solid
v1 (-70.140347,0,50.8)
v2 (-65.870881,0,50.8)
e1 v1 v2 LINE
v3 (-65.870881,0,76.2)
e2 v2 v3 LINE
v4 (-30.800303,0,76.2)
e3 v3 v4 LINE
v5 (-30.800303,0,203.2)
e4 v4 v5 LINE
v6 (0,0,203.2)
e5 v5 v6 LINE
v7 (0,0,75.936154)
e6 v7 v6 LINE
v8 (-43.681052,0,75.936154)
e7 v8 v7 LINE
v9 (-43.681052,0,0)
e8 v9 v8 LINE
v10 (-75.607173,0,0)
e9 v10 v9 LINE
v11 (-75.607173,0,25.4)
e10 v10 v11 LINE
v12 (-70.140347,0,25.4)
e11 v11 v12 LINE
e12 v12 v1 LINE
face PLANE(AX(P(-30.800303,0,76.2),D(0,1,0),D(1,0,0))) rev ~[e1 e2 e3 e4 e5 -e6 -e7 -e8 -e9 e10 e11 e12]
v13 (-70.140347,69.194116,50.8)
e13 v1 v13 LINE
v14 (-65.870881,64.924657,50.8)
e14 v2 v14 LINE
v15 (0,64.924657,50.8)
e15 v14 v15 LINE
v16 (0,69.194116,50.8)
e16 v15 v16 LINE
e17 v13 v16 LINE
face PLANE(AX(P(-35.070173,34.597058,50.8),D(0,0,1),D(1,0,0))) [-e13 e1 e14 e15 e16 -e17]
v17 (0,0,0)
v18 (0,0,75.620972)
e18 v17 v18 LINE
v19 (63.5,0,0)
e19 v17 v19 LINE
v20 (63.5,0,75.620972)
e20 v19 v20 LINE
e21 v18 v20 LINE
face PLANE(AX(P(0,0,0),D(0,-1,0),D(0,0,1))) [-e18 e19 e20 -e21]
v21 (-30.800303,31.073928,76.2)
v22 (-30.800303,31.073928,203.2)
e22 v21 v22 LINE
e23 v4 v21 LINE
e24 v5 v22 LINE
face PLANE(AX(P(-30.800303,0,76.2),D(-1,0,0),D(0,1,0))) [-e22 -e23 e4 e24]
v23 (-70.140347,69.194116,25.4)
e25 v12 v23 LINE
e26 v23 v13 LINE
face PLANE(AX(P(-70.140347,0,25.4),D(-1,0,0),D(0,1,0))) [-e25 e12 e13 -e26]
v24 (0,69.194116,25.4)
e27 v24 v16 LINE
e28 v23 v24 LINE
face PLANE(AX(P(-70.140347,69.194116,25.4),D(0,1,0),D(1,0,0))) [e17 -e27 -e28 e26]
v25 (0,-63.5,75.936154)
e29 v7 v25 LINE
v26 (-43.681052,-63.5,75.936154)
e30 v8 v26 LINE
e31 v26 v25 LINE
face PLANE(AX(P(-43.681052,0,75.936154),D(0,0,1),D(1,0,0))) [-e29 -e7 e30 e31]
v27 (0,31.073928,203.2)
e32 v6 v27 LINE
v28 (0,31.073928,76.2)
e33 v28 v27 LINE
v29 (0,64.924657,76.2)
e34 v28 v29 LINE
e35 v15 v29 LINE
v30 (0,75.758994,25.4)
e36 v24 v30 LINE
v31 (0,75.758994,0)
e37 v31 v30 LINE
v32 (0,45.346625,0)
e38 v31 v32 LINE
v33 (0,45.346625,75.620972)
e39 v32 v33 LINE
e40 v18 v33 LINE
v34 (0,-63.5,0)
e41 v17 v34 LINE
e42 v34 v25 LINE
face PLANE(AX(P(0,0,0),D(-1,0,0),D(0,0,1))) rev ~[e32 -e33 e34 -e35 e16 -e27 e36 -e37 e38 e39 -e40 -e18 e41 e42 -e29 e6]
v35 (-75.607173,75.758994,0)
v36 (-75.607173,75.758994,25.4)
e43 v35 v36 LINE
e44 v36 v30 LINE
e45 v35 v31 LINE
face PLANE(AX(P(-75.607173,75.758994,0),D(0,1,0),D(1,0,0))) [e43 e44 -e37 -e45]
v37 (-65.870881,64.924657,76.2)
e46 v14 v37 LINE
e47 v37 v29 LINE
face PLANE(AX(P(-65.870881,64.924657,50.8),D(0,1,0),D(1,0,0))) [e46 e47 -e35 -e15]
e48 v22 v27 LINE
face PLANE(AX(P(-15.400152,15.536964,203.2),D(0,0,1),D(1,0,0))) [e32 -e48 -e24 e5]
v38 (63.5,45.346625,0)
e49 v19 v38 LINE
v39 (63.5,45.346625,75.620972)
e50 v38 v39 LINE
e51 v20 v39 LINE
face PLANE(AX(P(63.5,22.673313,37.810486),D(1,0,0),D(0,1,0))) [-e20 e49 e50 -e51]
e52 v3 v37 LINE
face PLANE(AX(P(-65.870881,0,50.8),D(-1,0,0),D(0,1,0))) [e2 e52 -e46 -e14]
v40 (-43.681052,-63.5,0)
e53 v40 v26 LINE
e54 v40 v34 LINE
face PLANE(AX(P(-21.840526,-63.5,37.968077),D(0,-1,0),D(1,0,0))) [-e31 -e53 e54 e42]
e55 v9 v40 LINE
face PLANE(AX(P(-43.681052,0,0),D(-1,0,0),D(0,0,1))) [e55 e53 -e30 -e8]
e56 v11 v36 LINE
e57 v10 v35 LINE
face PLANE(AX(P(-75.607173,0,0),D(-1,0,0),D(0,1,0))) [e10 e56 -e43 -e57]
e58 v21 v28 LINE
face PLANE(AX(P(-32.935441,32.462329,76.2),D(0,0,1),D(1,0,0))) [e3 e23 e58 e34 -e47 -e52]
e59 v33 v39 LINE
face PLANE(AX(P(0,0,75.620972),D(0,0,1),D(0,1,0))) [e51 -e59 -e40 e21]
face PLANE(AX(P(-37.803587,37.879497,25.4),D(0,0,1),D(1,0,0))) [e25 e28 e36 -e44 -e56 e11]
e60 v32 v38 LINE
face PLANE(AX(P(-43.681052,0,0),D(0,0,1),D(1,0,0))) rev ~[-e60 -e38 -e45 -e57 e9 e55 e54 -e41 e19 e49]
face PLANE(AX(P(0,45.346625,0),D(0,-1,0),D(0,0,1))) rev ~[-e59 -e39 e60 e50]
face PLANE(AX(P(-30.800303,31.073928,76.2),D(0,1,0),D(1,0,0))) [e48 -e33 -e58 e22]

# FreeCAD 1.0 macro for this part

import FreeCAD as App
import Part
import Sketcher
Q = App.Units.Quantity

doc = App.newDocument("Part")
body = doc.addObject("PartDesign::Body", "Body")

# Sketch on XY plane
sketch1 = body.newObject("Sketcher::SketchObject", "Sketch")
sketch1.AttachmentSupport = (doc.getObject("XY_Plane"), [""])
sketch1.MapMode = "FlatFace"
sketch1.addGeometry(Part.LineSegment(App.Vector(-75.607173, 75.758994, 0), App.Vector(-75.607173, 0, 0)), False)
sketch1.addGeometry(Part.LineSegment(App.Vector(-75.607173, 0, 0), App.Vector(0, 0, 0)), False)
sketch1.addGeometry(Part.LineSegment(App.Vector(0, 0, 0), App.Vector(0, 75.758994, 0)), False)
sketch1.addGeometry(Part.LineSegment(App.Vector(0, 75.758994, 0), App.Vector(-75.607173, 75.758994, 0)), False)
sketch1.addConstraint(Sketcher.Constraint("Coincident", 0, 2, 1, 1))
sketch1.addConstraint(Sketcher.Constraint("Coincident", 1, 2, 2, 1))
sketch1.addConstraint(Sketcher.Constraint("Coincident", 2, 2, 3, 1))
sketch1.addConstraint(Sketcher.Constraint("Coincident", 3, 2, 0, 1))
sketch1.addConstraint(Sketcher.Constraint("Vertical", 0))
sketch1.addConstraint(Sketcher.Constraint("Horizontal", 1))
sketch1.addConstraint(Sketcher.Constraint("Vertical", 2))
sketch1.addConstraint(Sketcher.Constraint("Horizontal", 3))
sketch1.addConstraint(Sketcher.Constraint("Coincident", 1, 2, -1, 1))
sketch1.addConstraint(Sketcher.Constraint("DistanceX", 1, 1, 1, 2, 75.607173))
sketch1.addConstraint(Sketcher.Constraint("DistanceY", 0, 2, 0, 1, 75.758994))
pad1 = body.newObject("PartDesign::Pad", "Pad")
pad1.Profile = sketch1
pad1.Length = Q("1 in")

# Sketch on XY plane
sketch2 = body.newObject("Sketcher::SketchObject", "Sketch001")
sketch2.AttachmentSupport = (doc.getObject("XY_Plane"), [""])
sketch2.MapMode = "FlatFace"
sketch2.AttachmentOffset = App.Placement(App.Vector(0, 0, 1 * 25.4), App.Rotation())
sketch2.addGeometry(Part.LineSegment(App.Vector(-70.140347, 69.194116, 0), App.Vector(-70.140347, 0, 0)), False)
sketch2.addGeometry(Part.LineSegment(App.Vector(-70.140347, 0, 0), App.Vector(0, 0, 0)), False)
sketch2.addGeometry(Part.LineSegment(App.Vector(0, 0, 0), App.Vector(0, 69.194116, 0)), False)
sketch2.addGeometry(Part.LineSegment(App.Vector(0, 69.194116, 0), App.Vector(-70.140347, 69.194116, 0)), False)
sketch2.addConstraint(Sketcher.Constraint("Coincident", 0, 2, 1, 1))
sketch2.addConstraint(Sketcher.Constraint("Coincident", 1, 2, 2, 1))
sketch2.addConstraint(Sketcher.Constraint("Coincident", 2, 2, 3, 1))
sketch2.addConstraint(Sketcher.Constraint("Coincident", 3, 2, 0, 1))
sketch2.addConstraint(Sketcher.Constraint("Vertical", 0))
sketch2.addConstraint(Sketcher.Constraint("Horizontal", 1))
sketch2.addConstraint(Sketcher.Constraint("Vertical", 2))
sketch2.addConstraint(Sketcher.Constraint("Horizontal", 3))
sketch2.addConstraint(Sketcher.Constraint("Coincident", 1, 2, -1, 1))
sketch2.addConstraint(Sketcher.Constraint("DistanceX", 1, 1, 1, 2, 70.140347))
sketch2.addConstraint(Sketcher.Constraint("DistanceY", 0, 2, 0, 1, 69.194116))
pad2 = body.newObject("PartDesign::Pad", "Pad001")
pad2.Profile = sketch2
pad2.Length = Q("1 in")

# Sketch on XY plane
sketch3 = body.newObject("Sketcher::SketchObject", "Sketch002")
sketch3.AttachmentSupport = (doc.getObject("XY_Plane"), [""])
sketch3.MapMode = "FlatFace"
sketch3.AttachmentOffset = App.Placement(App.Vector(0, 0, 2 * 25.4), App.Rotation())
sketch3.addGeometry(Part.LineSegment(App.Vector(-65.870881, 64.924657, 0), App.Vector(-65.870881, 0, 0)), False)
sketch3.addGeometry(Part.LineSegment(App.Vector(-65.870881, 0, 0), App.Vector(0, 0, 0)), False)
sketch3.addGeometry(Part.LineSegment(App.Vector(0, 0, 0), App.Vector(0, 64.924657, 0)), False)
sketch3.addGeometry(Part.LineSegment(App.Vector(0, 64.924657, 0), App.Vector(-65.870881, 64.924657, 0)), False)
sketch3.addConstraint(Sketcher.Constraint("Coincident", 0, 2, 1, 1))
sketch3.addConstraint(Sketcher.Constraint("Coincident", 1, 2, 2, 1))
sketch3.addConstraint(Sketcher.Constraint("Coincident", 2, 2, 3, 1))
sketch3.addConstraint(Sketcher.Constraint("Coincident", 3, 2, 0, 1))
sketch3.addConstraint(Sketcher.Constraint("Vertical", 0))
sketch3.addConstraint(Sketcher.Constraint("Horizontal", 1))
sketch3.addConstraint(Sketcher.Constraint("Vertical", 2))
sketch3.addConstraint(Sketcher.Constraint("Horizontal", 3))
sketch3.addConstraint(Sketcher.Constraint("Coincident", 1, 2, -1, 1))
sketch3.addConstraint(Sketcher.Constraint("DistanceX", 1, 1, 1, 2, 65.870881))
sketch3.addConstraint(Sketcher.Constraint("DistanceY", 0, 2, 0, 1, 64.924657))
pad3 = body.newObject("PartDesign::Pad", "Pad002")
pad3.Profile = sketch3
pad3.Length = Q("1 in")

# Sketch on XY plane
sketch4 = body.newObject("Sketcher::SketchObject", "Sketch003")
sketch4.AttachmentSupport = (doc.getObject("XY_Plane"), [""])
sketch4.MapMode = "FlatFace"
sketch4.AttachmentOffset = App.Placement(App.Vector(0, 0, 3 * 25.4), App.Rotation())
sketch4.addGeometry(Part.LineSegment(App.Vector(-30.800303, 31.073928, 0), App.Vector(-30.800303, 0, 0)), False)
sketch4.addGeometry(Part.LineSegment(App.Vector(-30.800303, 0, 0), App.Vector(0, 0, 0)), False)
sketch4.addGeometry(Part.LineSegment(App.Vector(0, 0, 0), App.Vector(0, 31.073928, 0)), False)
sketch4.addGeometry(Part.LineSegment(App.Vector(0, 31.073928, 0), App.Vector(-30.800303, 31.073928, 0)), False)
sketch4.addConstraint(Sketcher.Constraint("Coincident", 0, 2, 1, 1))
sketch4.addConstraint(Sketcher.Constraint("Coincident", 1, 2, 2, 1))
sketch4.addConstraint(Sketcher.Constraint("Coincident", 2, 2, 3, 1))
sketch4.addConstraint(Sketcher.Constraint("Coincident", 3, 2, 0, 1))
sketch4.addConstraint(Sketcher.Constraint("Vertical", 0))
sketch4.addConstraint(Sketcher.Constraint("Horizontal", 1))
sketch4.addConstraint(Sketcher.Constraint("Vertical", 2))
sketch4.addConstraint(Sketcher.Constraint("Horizontal", 3))
sketch4.addConstraint(Sketcher.Constraint("Coincident", 1, 2, -1, 1))
sketch4.addConstraint(Sketcher.Constraint("DistanceX", 1, 1, 1, 2, 30.800303))
sketch4.addConstraint(Sketcher.Constraint("DistanceY", 0, 2, 0, 1, 31.073928))
pad4 = body.newObject("PartDesign::Pad", "Pad003")
pad4.Profile = sketch4
pad4.Length = Q("5 in")

# Sketch on XZ plane
sketch5 = body.newObject("Sketcher::SketchObject", "Sketch004")
sketch5.AttachmentSupport = (doc.getObject("XZ_Plane"), [""])
sketch5.MapMode = "FlatFace"
sketch5.addGeometry(Part.LineSegment(App.Vector(-43.681052, 75.936154, 0), App.Vector(-43.681052, 0, 0)), False)
sketch5.addGeometry(Part.LineSegment(App.Vector(-43.681052, 0, 0), App.Vector(0, 0, 0)), False)
sketch5.addGeometry(Part.LineSegment(App.Vector(0, 0, 0), App.Vector(0, 75.936154, 0)), False)
sketch5.addGeometry(Part.LineSegment(App.Vector(0, 75.936154, 0), App.Vector(-43.681052, 75.936154, 0)), False)
sketch5.addConstraint(Sketcher.Constraint("Coincident", 0, 2, 1, 1))
sketch5.addConstraint(Sketcher.Constraint("Coincident", 1, 2, 2, 1))
sketch5.addConstraint(Sketcher.Constraint("Coincident", 2, 2, 3, 1))
sketch5.addConstraint(Sketcher.Constraint("Coincident", 3, 2, 0, 1))
sketch5.addConstraint(Sketcher.Constraint("Vertical", 0))
sketch5.addConstraint(Sketcher.Constraint("Horizontal", 1))
sketch5.addConstraint(Sketcher.Constraint("Vertical", 2))
sketch5.addConstraint(Sketcher.Constraint("Horizontal", 3))
sketch5.addConstraint(Sketcher.Constraint("Coincident", 1, 2, -1, 1))
sketch5.addConstraint(Sketcher.Constraint("DistanceX", 1, 1, 1, 2, 43.681052))
sketch5.addConstraint(Sketcher.Constraint("DistanceY", 0, 2, 0, 1, 75.936154))
pad5 = body.newObject("PartDesign::Pad", "Pad004")
pad5.Profile = sketch5
pad5.Length = Q("2.5 in")

# Sketch on YZ plane
sketch6 = body.newObject("Sketcher::SketchObject", "Sketch005")
sketch6.AttachmentSupport = (doc.getObject("YZ_Plane"), [""])
sketch6.MapMode = "FlatFace"
sketch6.addGeometry(Part.LineSegment(App.Vector(0, 75.620972, 0), App.Vector(0, 0, 0)), False)
sketch6.addGeometry(Part.LineSegment(App.Vector(0, 0, 0), App.Vector(45.346625, 0, 0)), False)
sketch6.addGeometry(Part.LineSegment(App.Vector(45.346625, 0, 0), App.Vector(45.346625, 75.620972, 0)), False)
sketch6.addGeometry(Part.LineSegment(App.Vector(45.346625, 75.620972, 0), App.Vector(0, 75.620972, 0)), False)
sketch6.addConstraint(Sketcher.Constraint("Coincident", 0, 2, 1, 1))
sketch6.addConstraint(Sketcher.Constraint("Coincident", 1, 2, 2, 1))
sketch6.addConstraint(Sketcher.Constraint("Coincident", 2, 2, 3, 1))
sketch6.addConstraint(Sketcher.Constraint("Coincident", 3, 2, 0, 1))
sketch6.addConstraint(Sketcher.Constraint("Vertical", 0))
sketch6.addConstraint(Sketcher.Constraint("Horizontal", 1))
sketch6.addConstraint(Sketcher.Constraint("Vertical", 2))
sketch6.addConstraint(Sketcher.Constraint("Horizontal", 3))
sketch6.addConstraint(Sketcher.Constraint("Coincident", 0, 2, -1, 1))
sketch6.addConstraint(Sketcher.Constraint("DistanceY", 0, 2, 0, 1, 75.620972))
sketch6.addConstraint(Sketcher.Constraint("DistanceX", 1, 1, 1, 2, 45.346625))
pad6 = body.newObject("PartDesign::Pad", "Pad005")
pad6.Profile = sketch6
pad6.Length = Q("2.5 in")

doc.recompute()
